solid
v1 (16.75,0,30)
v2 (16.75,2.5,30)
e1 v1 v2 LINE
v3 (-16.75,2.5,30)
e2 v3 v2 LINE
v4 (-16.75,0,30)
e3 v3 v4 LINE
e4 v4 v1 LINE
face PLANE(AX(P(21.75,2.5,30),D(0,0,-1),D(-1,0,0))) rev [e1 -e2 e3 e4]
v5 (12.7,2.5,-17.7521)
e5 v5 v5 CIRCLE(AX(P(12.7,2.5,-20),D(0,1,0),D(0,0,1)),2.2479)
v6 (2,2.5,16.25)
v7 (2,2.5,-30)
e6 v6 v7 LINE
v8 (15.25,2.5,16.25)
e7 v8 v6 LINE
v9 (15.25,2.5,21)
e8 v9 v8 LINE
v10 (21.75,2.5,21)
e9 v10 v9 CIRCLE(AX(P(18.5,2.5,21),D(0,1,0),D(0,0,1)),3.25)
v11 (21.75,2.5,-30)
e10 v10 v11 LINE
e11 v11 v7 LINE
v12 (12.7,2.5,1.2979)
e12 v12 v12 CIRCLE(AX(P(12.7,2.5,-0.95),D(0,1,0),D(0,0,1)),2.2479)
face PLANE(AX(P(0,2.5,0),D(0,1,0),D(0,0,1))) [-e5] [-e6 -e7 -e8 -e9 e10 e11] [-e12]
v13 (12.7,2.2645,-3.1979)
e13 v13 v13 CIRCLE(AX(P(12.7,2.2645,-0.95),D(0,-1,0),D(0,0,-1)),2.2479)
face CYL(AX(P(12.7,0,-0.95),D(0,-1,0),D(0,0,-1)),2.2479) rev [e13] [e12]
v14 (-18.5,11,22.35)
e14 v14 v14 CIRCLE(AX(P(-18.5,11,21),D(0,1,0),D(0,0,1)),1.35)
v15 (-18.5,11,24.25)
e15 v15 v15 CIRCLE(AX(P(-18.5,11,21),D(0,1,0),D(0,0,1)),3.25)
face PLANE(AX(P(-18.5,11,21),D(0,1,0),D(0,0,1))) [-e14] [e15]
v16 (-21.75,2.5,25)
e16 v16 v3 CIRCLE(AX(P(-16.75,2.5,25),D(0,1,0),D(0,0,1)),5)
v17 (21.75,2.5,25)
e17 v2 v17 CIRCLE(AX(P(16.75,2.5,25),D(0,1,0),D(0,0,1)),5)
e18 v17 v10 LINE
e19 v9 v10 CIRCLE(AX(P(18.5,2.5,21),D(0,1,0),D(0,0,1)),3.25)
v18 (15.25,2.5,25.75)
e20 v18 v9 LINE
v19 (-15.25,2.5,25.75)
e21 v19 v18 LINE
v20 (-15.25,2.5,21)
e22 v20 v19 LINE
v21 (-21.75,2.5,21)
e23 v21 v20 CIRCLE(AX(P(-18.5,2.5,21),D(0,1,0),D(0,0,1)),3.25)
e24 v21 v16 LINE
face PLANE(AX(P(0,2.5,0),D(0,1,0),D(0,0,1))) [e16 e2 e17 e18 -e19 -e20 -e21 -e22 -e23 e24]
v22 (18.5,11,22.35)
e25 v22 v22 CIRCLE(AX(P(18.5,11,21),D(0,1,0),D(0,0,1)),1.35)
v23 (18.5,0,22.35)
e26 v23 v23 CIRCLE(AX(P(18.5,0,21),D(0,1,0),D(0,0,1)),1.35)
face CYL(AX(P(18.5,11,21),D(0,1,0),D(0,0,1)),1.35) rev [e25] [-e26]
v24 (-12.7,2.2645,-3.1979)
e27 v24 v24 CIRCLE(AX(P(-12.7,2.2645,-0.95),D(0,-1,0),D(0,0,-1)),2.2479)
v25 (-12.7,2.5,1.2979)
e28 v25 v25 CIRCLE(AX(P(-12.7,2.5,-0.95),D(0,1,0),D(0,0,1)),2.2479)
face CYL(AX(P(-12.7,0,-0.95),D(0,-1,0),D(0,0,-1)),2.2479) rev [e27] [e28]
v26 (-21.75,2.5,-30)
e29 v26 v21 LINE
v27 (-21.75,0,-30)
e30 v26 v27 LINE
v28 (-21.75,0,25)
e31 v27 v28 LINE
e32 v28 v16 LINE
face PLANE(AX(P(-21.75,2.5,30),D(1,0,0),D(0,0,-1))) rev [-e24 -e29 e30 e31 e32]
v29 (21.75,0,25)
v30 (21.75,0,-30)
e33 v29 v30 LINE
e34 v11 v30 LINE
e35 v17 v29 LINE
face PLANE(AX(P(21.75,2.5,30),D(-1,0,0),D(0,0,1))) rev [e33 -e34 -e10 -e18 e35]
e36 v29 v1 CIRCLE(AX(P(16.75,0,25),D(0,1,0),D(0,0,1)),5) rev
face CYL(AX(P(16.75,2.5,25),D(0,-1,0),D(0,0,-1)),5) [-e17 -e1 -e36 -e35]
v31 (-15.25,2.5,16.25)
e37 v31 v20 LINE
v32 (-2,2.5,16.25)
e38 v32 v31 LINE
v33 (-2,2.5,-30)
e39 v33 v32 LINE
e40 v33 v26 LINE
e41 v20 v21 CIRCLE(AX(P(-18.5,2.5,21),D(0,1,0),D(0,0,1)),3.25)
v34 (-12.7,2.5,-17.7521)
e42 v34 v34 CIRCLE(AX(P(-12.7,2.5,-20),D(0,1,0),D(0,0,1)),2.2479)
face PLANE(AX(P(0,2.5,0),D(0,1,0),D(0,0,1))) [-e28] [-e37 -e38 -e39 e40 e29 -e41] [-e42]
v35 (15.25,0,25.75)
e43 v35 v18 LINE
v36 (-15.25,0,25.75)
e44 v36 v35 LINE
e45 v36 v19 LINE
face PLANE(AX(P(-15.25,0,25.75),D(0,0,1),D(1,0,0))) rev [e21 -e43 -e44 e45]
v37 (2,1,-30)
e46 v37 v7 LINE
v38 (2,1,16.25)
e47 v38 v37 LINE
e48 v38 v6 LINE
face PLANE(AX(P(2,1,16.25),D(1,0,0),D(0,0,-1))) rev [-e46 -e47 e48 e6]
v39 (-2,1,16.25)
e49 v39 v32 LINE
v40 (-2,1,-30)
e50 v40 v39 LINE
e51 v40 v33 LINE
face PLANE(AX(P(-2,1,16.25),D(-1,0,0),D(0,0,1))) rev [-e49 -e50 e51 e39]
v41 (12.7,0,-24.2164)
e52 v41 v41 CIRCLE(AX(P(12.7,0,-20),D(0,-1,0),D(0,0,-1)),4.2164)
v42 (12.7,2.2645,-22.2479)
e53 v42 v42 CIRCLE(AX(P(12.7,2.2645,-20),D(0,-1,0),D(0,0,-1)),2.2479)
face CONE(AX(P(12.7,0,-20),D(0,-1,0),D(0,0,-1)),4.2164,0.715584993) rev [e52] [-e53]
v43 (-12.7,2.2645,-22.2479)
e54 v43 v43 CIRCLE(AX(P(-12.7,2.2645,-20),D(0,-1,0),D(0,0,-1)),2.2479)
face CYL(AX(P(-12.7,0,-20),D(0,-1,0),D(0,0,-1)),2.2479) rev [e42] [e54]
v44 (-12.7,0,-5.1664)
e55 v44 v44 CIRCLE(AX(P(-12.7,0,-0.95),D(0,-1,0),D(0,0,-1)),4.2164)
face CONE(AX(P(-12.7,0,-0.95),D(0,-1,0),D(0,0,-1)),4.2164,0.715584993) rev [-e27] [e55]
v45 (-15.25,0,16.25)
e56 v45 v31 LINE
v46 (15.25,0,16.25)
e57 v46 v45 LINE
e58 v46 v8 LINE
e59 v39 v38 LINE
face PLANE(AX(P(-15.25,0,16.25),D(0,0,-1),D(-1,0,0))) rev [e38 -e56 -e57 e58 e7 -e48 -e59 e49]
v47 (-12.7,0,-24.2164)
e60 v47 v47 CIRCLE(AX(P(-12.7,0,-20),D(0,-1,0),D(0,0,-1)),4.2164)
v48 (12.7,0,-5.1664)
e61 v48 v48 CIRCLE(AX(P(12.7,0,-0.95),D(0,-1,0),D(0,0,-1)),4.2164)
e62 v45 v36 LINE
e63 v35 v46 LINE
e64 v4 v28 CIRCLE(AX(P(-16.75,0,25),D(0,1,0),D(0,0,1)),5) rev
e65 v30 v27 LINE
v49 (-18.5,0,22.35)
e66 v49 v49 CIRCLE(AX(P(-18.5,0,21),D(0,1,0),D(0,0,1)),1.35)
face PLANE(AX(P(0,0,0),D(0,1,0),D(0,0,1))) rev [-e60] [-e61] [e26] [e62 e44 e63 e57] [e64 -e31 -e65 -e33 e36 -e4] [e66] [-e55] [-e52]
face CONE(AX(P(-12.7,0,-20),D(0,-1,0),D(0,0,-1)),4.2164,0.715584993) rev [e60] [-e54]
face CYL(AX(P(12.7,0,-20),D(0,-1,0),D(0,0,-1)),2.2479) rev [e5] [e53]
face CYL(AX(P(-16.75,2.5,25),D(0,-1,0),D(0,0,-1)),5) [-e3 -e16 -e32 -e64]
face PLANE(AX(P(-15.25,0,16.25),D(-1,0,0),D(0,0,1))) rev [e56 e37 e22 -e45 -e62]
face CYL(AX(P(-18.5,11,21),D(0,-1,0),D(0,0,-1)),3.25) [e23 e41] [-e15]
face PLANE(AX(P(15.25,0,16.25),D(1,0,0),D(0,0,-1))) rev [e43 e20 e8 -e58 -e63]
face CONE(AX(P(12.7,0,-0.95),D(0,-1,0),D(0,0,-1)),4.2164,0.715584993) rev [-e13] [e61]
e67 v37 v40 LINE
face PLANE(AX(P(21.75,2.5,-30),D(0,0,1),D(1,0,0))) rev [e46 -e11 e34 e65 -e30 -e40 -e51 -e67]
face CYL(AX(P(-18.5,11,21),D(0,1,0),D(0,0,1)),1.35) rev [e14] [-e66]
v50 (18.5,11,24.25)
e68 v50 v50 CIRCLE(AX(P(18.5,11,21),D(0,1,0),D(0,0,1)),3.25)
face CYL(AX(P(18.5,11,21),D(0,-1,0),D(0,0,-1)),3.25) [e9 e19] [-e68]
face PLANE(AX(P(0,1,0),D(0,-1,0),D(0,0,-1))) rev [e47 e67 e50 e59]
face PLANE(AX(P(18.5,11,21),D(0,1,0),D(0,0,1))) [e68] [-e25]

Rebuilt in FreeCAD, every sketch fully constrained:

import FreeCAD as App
import Part
import Sketcher

V = App.Vector
Q = App.Units.Quantity


def edges_at(feature, points):
    """Names of the edges that pass closest to the given points."""
    edges = feature.Shape.Edges
    near = lambda p: min(range(len(edges)), key=lambda i: edges[i].distToShape(Part.Vertex(*p))[0])
    return sorted({f"Edge{near(p) + 1}" for p in points})

doc = App.newDocument("Part")
body = doc.addObject("PartDesign::Body", "Body")

sketch1 = body.newObject("Sketcher::SketchObject", "Sketch")
sketch1.AttachmentSupport = (doc.getObject("XZ_Plane"), [""])
sketch1.MapMode = "FlatFace"
sketch1.addGeometry([
    Part.LineSegment(V(-22, -30, 0), V(-22, 30, 0)),
    Part.LineSegment(V(-22, 30, 0), V(22, 30, 0)),
    Part.LineSegment(V(22, 30, 0), V(22, -30, 0)),
    Part.LineSegment(V(22, -30, 0), V(-22, -30, 0)),
], False)
sketch1.addConstraint([
    Sketcher.Constraint("Coincident", 0, 2, 1, 1),
    Sketcher.Constraint("Coincident", 1, 2, 2, 1),
    Sketcher.Constraint("Coincident", 2, 2, 3, 1),
    Sketcher.Constraint("Coincident", 3, 2, 0, 1),
    Sketcher.Constraint("Vertical", 0),
    Sketcher.Constraint("Horizontal", 1),
    Sketcher.Constraint("Vertical", 2),
    Sketcher.Constraint("Horizontal", 3),
    Sketcher.Constraint("Symmetric", 0, 2, 2, 2, -1, 1),
    Sketcher.Constraint("DistanceY", 0, 1, 0, 2, Q("60 mm")),
    Sketcher.Constraint("DistanceX", 1, 1, 1, 2, Q("43.5 mm")),
])
pad1 = body.newObject("PartDesign::Pad", "Pad")
pad1.Profile = sketch1
pad1.Length = 2.5
pad1.Reversed = True

sketch2 = body.newObject("Sketcher::SketchObject", "Sketch001")
sketch2.AttachmentSupport = (doc.getObject("XZ_Plane"), [""])
sketch2.MapMode = "FlatFace"
sketch2.AttachmentOffset = App.Placement(V(0, 0, -2.5), App.Rotation())
sketch2.addGeometry([
    Part.LineSegment(V(-15, 16, 0), V(-15, 26, 0)),
    Part.LineSegment(V(-15, 26, 0), V(15, 26, 0)),
    Part.LineSegment(V(15, 26, 0), V(15, 16, 0)),
    Part.LineSegment(V(15, 16, 0), V(-15, 16, 0)),
], False)
sketch2.addConstraint([
    Sketcher.Constraint("Coincident", 0, 2, 1, 1),
    Sketcher.Constraint("Coincident", 1, 2, 2, 1),
    Sketcher.Constraint("Coincident", 2, 2, 3, 1),
    Sketcher.Constraint("Coincident", 3, 2, 0, 1),
    Sketcher.Constraint("Vertical", 0),
    Sketcher.Constraint("Horizontal", 1),
    Sketcher.Constraint("Vertical", 2),
    Sketcher.Constraint("Horizontal", 3),
    Sketcher.Constraint("DistanceX", 1, 1, 1, 2, Q("30.5 mm")),
    Sketcher.Constraint("DistanceY", 0, 1, 0, 2, Q("9.5 mm")),
    Sketcher.Constraint("DistanceX", 0, 2, -1, 1, Q("15.25 mm")),
    Sketcher.Constraint("DistanceY", -1, 1, 0, 2, Q("25.75 mm")),
])
pocket1 = body.newObject("PartDesign::Pocket", "Pocket")
pocket1.Profile = sketch2
pocket1.Type = "ThroughAll"
pocket1.Reversed = True

sketch3 = body.newObject("Sketcher::SketchObject", "Sketch002")
sketch3.AttachmentSupport = (doc.getObject("XZ_Plane"), [""])
sketch3.MapMode = "FlatFace"
sketch3.AttachmentOffset = App.Placement(V(0, 0, -2.5), App.Rotation())
sketch3.addGeometry([
    Part.Circle(V(-18.5, 21, 0), V(0, 0, 1), 3.2),
    Part.Circle(V(18.5, 21, 0), V(0, 0, 1), 3.2),
], False)
sketch3.addConstraint([
    Sketcher.Constraint("Equal", 0, 1),
    Sketcher.Constraint("Symmetric", 0, 3, 1, 3, -2),
    Sketcher.Constraint("Diameter", 0, Q("6.5 mm")),
    Sketcher.Constraint("DistanceY", -1, 1, 0, 3, Q("21 mm")),
    Sketcher.Constraint("DistanceX", 0, 3, 1, 3, Q("37 mm")),
])
pad2 = body.newObject("PartDesign::Pad", "Pad001")
pad2.Profile = sketch3
pad2.Length = 8.5
pad2.Reversed = True

sketch4 = body.newObject("Sketcher::SketchObject", "Sketch003")
sketch4.AttachmentSupport = (doc.getObject("XZ_Plane"), [""])
sketch4.MapMode = "FlatFace"
sketch4.AttachmentOffset = App.Placement(V(0, 0, -11), App.Rotation())
sketch4.addGeometry([
    Part.Circle(V(-18.5, 21, 0), V(0, 0, 1), 1.4),
    Part.Circle(V(18.5, 21, 0), V(0, 0, 1), 1.4),
], False)
sketch4.addConstraint([
    Sketcher.Constraint("Equal", 0, 1),
    Sketcher.Constraint("Symmetric", 0, 3, 1, 3, -2),
    Sketcher.Constraint("Diameter", 0, Q("2.7 mm")),
    Sketcher.Constraint("DistanceY", -1, 1, 0, 3, Q("21 mm")),
    Sketcher.Constraint("DistanceX", 0, 3, 1, 3, Q("37 mm")),
])
doc.recompute()
hole = body.newObject("PartDesign::Hole", "Hole")
hole.Profile = sketch4
hole.ThreadType = "None"
hole.Diameter = 2.7
hole.DepthType = "ThroughAll"
hole.Reversed = True
doc.recompute()

fillet = body.newObject("PartDesign::Fillet", "Fillet")
fillet.Base = (hole, edges_at(hole, [(21.75, 1.25, 30), (-21.75, 1.25, 30)]))
fillet.Radius = 5

sketch5 = body.newObject("Sketcher::SketchObject", "Sketch004")
sketch5.AttachmentSupport = (doc.getObject("XZ_Plane"), [""])
sketch5.MapMode = "FlatFace"
sketch5.AttachmentOffset = App.Placement(V(0, 0, -2.5), App.Rotation())
sketch5.addGeometry([
    Part.LineSegment(V(-2, -30, 0), V(-2, 16.2, 0)),
    Part.LineSegment(V(-2, 16.2, 0), V(2, 16.2, 0)),
    Part.LineSegment(V(2, 16.2, 0), V(2, -30, 0)),
    Part.LineSegment(V(2, -30, 0), V(-2, -30, 0)),
], False)
sketch5.addConstraint([
    Sketcher.Constraint("Coincident", 0, 2, 1, 1),
    Sketcher.Constraint("Coincident", 1, 2, 2, 1),
    Sketcher.Constraint("Coincident", 2, 2, 3, 1),
    Sketcher.Constraint("Coincident", 3, 2, 0, 1),
    Sketcher.Constraint("Vertical", 0),
    Sketcher.Constraint("Horizontal", 1),
    Sketcher.Constraint("Vertical", 2),
    Sketcher.Constraint("Horizontal", 3),
    Sketcher.Constraint("DistanceX", 1, 1, 1, 2, Q("4 mm")),
    Sketcher.Constraint("DistanceX", 0, 2, -1, 1, Q("2 mm")),
    Sketcher.Constraint("DistanceY", 2, 2, -1, 1, Q("30 mm")),
    Sketcher.Constraint("DistanceY", 0, 1, 0, 2, Q("46.25 mm")),
])
pocket2 = body.newObject("PartDesign::Pocket", "Pocket001")
pocket2.Profile = sketch5
pocket2.Length = 1.5
pocket2.Reversed = True

sketch6 = body.newObject("Sketcher::SketchObject", "Sketch005")
sketch6.AttachmentSupport = (doc.getObject("XZ_Plane"), [""])
sketch6.MapMode = "FlatFace"
sketch6.addGeometry([
    Part.Circle(V(12.7, -0.9, 0), V(0, 0, 1), 2.2),
    Part.Circle(V(12.7, -20, 0), V(0, 0, 1), 2.2),
    Part.Circle(V(-12.7, -0.9, 0), V(0, 0, 1), 2.2),
    Part.Circle(V(-12.7, -20, 0), V(0, 0, 1), 2.2),
], False)
sketch6.addConstraint([
    Sketcher.Constraint("Equal", 0, 1),
    Sketcher.Constraint("Equal", 1, 2),
    Sketcher.Constraint("Equal", 2, 3),
    Sketcher.Constraint("Symmetric", 0, 3, 2, 3, -2),
    Sketcher.Constraint("Symmetric", 1, 3, 3, 3, -2),
    Sketcher.Constraint("Vertical", 0, 3, 1, 3),
    Sketcher.Constraint("DistanceY", 1, 3, -1, 1, Q("20 mm")),
    Sketcher.Constraint("Diameter", 0, Q("4.4958 mm")),
    Sketcher.Constraint("DistanceX", -1, 1, 0, 3, Q("12.7 mm")),
    Sketcher.Constraint("DistanceY", 0, 3, -1, 1, Q("0.95 mm")),
])
doc.recompute()
hole2 = body.newObject("PartDesign::Hole", "Hole001")
hole2.Profile = sketch6
hole2.ThreadType = "None"
hole2.Diameter = 4.4958
hole2.DepthType = "ThroughAll"
hole2.HoleCutType = "Countersink"
hole2.HoleCutDiameter = 8.4328
hole2.HoleCutCountersinkAngle = 82

doc.recompute()
